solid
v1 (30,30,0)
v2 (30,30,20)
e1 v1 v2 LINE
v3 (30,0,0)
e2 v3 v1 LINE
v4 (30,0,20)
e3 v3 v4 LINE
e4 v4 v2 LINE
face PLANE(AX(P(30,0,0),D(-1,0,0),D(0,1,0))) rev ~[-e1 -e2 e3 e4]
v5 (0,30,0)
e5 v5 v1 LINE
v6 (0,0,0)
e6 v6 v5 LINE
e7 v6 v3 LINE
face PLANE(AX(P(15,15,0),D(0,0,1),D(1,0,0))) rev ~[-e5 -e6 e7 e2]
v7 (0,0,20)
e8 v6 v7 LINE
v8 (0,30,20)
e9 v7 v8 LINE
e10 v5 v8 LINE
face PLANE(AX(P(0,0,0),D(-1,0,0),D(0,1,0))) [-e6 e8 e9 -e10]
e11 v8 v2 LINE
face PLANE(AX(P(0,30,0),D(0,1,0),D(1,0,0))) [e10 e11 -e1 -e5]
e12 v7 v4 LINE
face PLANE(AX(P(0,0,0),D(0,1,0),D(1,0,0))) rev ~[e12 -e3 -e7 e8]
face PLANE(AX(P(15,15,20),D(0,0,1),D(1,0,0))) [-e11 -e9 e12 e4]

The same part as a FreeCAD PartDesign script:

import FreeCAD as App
import Part
import Sketcher

V = App.Vector
Q = App.Units.Quantity

doc = App.newDocument("Part")
body = doc.addObject("PartDesign::Body", "Body")

# Sketch on XY plane
sketch1 = body.newObject("Sketcher::SketchObject", "Sketch")
sketch1.AttachmentSupport = (doc.getObject("XY_Plane"), [""])
sketch1.MapMode = "FlatFace"
sketch1.addGeometry(Part.LineSegment(V(0, 30, 0), V(0, 0, 0)), False)
sketch1.addGeometry(Part.LineSegment(V(0, 0, 0), V(30, 0, 0)), False)
sketch1.addGeometry(Part.LineSegment(V(30, 0, 0), V(30, 30, 0)), False)
sketch1.addGeometry(Part.LineSegment(V(30, 30, 0), V(0, 30, 0)), False)
sketch1.addConstraint(Sketcher.Constraint("Coincident", 0, 2, 1, 1))
sketch1.addConstraint(Sketcher.Constraint("Coincident", 1, 2, 2, 1))
sketch1.addConstraint(Sketcher.Constraint("Coincident", 2, 2, 3, 1))
sketch1.addConstraint(Sketcher.Constraint("Coincident", 3, 2, 0, 1))
sketch1.addConstraint(Sketcher.Constraint("Vertical", 0))
sketch1.addConstraint(Sketcher.Constraint("Horizontal", 1))
sketch1.addConstraint(Sketcher.Constraint("Vertical", 2))
sketch1.addConstraint(Sketcher.Constraint("Horizontal", 3))
sketch1.addConstraint(Sketcher.Constraint("Coincident", 0, 2, -1, 1))
sketch1.addConstraint(Sketcher.Constraint("Equal", 3, 0))
sketch1.addConstraint(Sketcher.Constraint("DistanceX", 1, 1, 1, 2, Q("30 mm")))
pad1 = body.newObject("PartDesign::Pad", "Pad")
pad1.Profile = sketch1
pad1.Length = 20

doc.recompute()
